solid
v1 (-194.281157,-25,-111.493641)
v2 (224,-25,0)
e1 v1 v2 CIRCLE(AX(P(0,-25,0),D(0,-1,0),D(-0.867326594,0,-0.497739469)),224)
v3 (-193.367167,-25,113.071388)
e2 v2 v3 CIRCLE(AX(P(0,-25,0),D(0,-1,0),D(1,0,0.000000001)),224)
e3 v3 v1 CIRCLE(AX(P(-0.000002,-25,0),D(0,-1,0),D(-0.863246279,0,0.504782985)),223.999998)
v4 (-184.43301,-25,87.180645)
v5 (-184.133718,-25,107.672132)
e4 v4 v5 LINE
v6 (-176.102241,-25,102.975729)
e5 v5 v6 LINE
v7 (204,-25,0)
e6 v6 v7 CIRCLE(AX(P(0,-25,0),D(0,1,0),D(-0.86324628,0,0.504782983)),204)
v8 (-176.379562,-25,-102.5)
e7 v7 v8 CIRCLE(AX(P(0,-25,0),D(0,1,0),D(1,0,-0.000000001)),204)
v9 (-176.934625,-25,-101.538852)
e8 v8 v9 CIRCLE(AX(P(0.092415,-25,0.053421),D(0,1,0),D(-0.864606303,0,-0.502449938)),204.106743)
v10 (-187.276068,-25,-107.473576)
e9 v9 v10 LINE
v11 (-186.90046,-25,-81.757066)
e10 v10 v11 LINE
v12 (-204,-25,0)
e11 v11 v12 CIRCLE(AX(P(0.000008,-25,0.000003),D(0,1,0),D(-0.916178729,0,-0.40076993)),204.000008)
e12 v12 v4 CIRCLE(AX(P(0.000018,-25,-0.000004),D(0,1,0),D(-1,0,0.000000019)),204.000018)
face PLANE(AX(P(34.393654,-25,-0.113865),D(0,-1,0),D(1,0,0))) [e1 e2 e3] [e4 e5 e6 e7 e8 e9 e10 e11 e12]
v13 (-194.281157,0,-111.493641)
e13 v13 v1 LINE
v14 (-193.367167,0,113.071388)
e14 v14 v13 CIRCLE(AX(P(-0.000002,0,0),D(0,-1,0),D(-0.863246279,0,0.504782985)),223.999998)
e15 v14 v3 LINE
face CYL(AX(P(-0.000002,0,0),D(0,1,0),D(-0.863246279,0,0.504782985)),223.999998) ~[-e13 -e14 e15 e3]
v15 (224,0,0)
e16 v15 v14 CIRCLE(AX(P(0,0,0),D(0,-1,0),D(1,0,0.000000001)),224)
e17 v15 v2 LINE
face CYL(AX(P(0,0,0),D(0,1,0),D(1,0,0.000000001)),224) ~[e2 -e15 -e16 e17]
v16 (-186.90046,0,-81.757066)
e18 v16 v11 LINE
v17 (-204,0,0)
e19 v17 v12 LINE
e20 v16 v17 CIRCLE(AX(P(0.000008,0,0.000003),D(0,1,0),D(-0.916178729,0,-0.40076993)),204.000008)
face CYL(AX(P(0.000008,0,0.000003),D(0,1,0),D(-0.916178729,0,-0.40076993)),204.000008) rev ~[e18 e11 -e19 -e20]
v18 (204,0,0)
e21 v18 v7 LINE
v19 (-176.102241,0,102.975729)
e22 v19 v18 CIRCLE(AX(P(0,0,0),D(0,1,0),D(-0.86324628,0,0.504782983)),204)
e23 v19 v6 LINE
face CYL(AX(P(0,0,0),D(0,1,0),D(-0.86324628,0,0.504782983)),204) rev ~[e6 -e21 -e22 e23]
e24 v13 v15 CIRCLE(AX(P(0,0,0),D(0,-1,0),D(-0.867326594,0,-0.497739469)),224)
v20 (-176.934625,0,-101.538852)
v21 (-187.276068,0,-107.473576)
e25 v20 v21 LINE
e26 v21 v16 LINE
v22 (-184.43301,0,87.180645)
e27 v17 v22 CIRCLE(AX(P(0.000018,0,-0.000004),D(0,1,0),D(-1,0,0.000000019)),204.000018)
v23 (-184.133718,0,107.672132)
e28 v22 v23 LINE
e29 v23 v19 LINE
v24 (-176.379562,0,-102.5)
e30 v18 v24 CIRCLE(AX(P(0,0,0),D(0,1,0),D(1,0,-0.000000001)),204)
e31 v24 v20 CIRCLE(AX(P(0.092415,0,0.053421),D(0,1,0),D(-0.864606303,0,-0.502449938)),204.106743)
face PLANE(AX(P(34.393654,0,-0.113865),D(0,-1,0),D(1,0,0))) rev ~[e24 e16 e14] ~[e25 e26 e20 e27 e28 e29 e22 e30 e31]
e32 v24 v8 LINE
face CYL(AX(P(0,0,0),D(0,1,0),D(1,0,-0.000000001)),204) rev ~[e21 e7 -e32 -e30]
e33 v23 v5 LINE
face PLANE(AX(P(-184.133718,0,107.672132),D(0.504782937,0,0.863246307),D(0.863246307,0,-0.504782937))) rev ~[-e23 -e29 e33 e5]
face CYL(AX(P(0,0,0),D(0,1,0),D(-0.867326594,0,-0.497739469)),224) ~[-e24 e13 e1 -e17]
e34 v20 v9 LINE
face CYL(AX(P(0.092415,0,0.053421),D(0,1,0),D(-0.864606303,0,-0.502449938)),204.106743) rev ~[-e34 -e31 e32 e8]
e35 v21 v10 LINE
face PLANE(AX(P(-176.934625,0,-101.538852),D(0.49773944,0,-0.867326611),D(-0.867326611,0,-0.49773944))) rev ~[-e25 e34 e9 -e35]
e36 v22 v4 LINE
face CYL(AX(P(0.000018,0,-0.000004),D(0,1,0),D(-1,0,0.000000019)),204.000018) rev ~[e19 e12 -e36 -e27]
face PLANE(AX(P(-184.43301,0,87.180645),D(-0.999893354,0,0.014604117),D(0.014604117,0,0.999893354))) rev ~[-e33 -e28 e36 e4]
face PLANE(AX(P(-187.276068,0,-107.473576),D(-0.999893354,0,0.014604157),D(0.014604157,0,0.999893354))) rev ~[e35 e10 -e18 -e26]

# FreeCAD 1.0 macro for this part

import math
import FreeCAD as App
import Part
import Sketcher

V = App.Vector

doc = App.newDocument("Part")
body = doc.addObject("PartDesign::Body", "Body")

# Sketch on XZ plane
sketch1 = body.newObject("Sketcher::SketchObject", "Sketch")
sketch1.AttachmentSupport = (doc.getObject("XZ_Plane"), [""])
sketch1.MapMode = "FlatFace"
sketch1.addGeometry(Part.ArcOfCircle(Part.Circle(V(0, 0, 0), V(0, 0, 1), 224), math.radians(-150.149443), math.radians(0)), False)
sketch1.addGeometry(Part.ArcOfCircle(Part.Circle(V(0, 0, 0), V(0, 0, 1), 224), math.radians(0), math.radians(149.683053)), False)
sketch1.addGeometry(Part.ArcOfCircle(Part.Circle(V(-0.000002, 0, 0), V(0, 0, 1), 223.999998), math.radians(149.683053), math.radians(209.850557)), False)
sketch1.addGeometry(Part.LineSegment(V(-184.133718, 107.672132, 0), V(-176.102241, 102.975729, 0)), False)
sketch1.addGeometry(Part.ArcOfCircle(Part.Circle(V(0, 0, 0), V(0, 0, 1), 204), math.radians(0), math.radians(149.683053)), False)
sketch1.addGeometry(Part.ArcOfCircle(Part.Circle(V(0, 0, 0), V(0, 0, 1), 204), math.radians(-149.837711), math.radians(0)), False)
sketch1.addGeometry(Part.ArcOfCircle(Part.Circle(V(0.092415, 0.053421, 0), V(0, 0, 1), 204.106743), math.radians(-150.149349), math.radians(-149.837781)), False)
sketch1.addGeometry(Part.LineSegment(V(-176.934625, -101.538852, 0), V(-187.276068, -107.473576, 0)), False)
sketch1.addGeometry(Part.LineSegment(V(-187.276068, -107.473576, 0), V(-186.90046, -81.757066, 0)), False)
sketch1.addGeometry(Part.ArcOfCircle(Part.Circle(V(0.000008, 0.000003, 0), V(0, 0, 1), 204.000008), math.radians(-179.999999), math.radians(-156.373681)), False)
sketch1.addGeometry(Part.ArcOfCircle(Part.Circle(V(0.000018, -0.000004, 0), V(0, 0, 1), 204.000018), math.radians(154.700113), math.radians(179.999999)), False)
sketch1.addGeometry(Part.LineSegment(V(-184.43301, 87.180645, 0), V(-184.133718, 107.672132, 0)), False)
sketch1.addConstraint(Sketcher.Constraint("Coincident", 0, 2, 1, 1))
sketch1.addConstraint(Sketcher.Constraint("Coincident", 1, 2, 2, 1))
sketch1.addConstraint(Sketcher.Constraint("Coincident", 2, 2, 0, 1))
sketch1.addConstraint(Sketcher.Constraint("Coincident", 3, 2, 4, 2))
sketch1.addConstraint(Sketcher.Constraint("Coincident", 4, 1, 5, 2))
sketch1.addConstraint(Sketcher.Constraint("Coincident", 5, 1, 6, 2))
sketch1.addConstraint(Sketcher.Constraint("Coincident", 6, 1, 7, 1))
sketch1.addConstraint(Sketcher.Constraint("Coincident", 7, 2, 8, 1))
sketch1.addConstraint(Sketcher.Constraint("Coincident", 8, 2, 9, 2))
sketch1.addConstraint(Sketcher.Constraint("Coincident", 9, 1, 10, 2))
sketch1.addConstraint(Sketcher.Constraint("Coincident", 10, 1, 11, 1))
sketch1.addConstraint(Sketcher.Constraint("Coincident", 11, 2, 3, 1))
sketch1.addConstraint(Sketcher.Constraint("Coincident", 0, 3, -1, 1))
sketch1.addConstraint(Sketcher.Constraint("Coincident", 1, 3, -1, 1))
sketch1.addConstraint(Sketcher.Constraint("Coincident", 4, 3, -1, 1))
sketch1.addConstraint(Sketcher.Constraint("Coincident", 5, 3, -1, 1))
sketch1.addConstraint(Sketcher.Constraint("Coincident", 9, 3, -1, 1))
sketch1.addConstraint(Sketcher.Constraint("PointOnObject", 2, 3, -1))
sketch1.addConstraint(Sketcher.Constraint("PointOnObject", 0, 2, -1))
sketch1.addConstraint(Sketcher.Constraint("PointOnObject", 4, 1, -1))
sketch1.addConstraint(Sketcher.Constraint("PointOnObject", 9, 1, -1))
sketch1.addConstraint(Sketcher.Constraint("Radius", 0, 224.0))
sketch1.addConstraint(Sketcher.Constraint("Radius", 4, 204.0))
sketch1.addConstraint(Sketcher.Constraint("DistanceX", 9, 1, -1, 1, 204.0))
sketch1.addConstraint(Sketcher.Constraint("DistanceY", 5, 1, -1, 1, 102.5))
sketch1.addConstraint(Sketcher.Constraint("Radius", 10, 204.000018))
sketch1.addConstraint(Sketcher.Constraint("Radius", 6, 204.106743))
sketch1.addConstraint(Sketcher.Constraint("DistanceY", -1, 1, 6, 3, 0.053421))
sketch1.addConstraint(Sketcher.Constraint("DistanceY", 2, 2, -1, 1, 111.493641))
sketch1.addConstraint(Sketcher.Constraint("DistanceX", 3, 2, -1, 1, 176.102241))
sketch1.addConstraint(Sketcher.Constraint("DistanceX", 7, 2, -1, 1, 187.276068))
sketch1.addConstraint(Sketcher.Constraint("DistanceX", 8, 2, -1, 1, 186.90046))
sketch1.addConstraint(Sketcher.Constraint("DistanceX", 10, 1, -1, 1, 184.43301))
sketch1.addConstraint(Sketcher.Constraint("DistanceY", 1, 3, 1, 2, 113.071388))
sketch1.addConstraint(Sketcher.Constraint("DistanceY", 5, 1, 6, 1, 0.961148))
sketch1.addConstraint(Sketcher.Constraint("DistanceY", 7, 2, 8, 2, 25.71651))
sketch1.addConstraint(Sketcher.Constraint("DistanceY", 8, 2, 10, 1, 168.937711))
sketch1.addConstraint(Sketcher.Constraint("DistanceX", 1, 2, 11, 2, 9.233449))
sketch1.addConstraint(Sketcher.Constraint("Distance", 3, 9.303807))
pad1 = body.newObject("PartDesign::Pad", "Pad")
pad1.Profile = sketch1
pad1.Length = 25

doc.recompute()
